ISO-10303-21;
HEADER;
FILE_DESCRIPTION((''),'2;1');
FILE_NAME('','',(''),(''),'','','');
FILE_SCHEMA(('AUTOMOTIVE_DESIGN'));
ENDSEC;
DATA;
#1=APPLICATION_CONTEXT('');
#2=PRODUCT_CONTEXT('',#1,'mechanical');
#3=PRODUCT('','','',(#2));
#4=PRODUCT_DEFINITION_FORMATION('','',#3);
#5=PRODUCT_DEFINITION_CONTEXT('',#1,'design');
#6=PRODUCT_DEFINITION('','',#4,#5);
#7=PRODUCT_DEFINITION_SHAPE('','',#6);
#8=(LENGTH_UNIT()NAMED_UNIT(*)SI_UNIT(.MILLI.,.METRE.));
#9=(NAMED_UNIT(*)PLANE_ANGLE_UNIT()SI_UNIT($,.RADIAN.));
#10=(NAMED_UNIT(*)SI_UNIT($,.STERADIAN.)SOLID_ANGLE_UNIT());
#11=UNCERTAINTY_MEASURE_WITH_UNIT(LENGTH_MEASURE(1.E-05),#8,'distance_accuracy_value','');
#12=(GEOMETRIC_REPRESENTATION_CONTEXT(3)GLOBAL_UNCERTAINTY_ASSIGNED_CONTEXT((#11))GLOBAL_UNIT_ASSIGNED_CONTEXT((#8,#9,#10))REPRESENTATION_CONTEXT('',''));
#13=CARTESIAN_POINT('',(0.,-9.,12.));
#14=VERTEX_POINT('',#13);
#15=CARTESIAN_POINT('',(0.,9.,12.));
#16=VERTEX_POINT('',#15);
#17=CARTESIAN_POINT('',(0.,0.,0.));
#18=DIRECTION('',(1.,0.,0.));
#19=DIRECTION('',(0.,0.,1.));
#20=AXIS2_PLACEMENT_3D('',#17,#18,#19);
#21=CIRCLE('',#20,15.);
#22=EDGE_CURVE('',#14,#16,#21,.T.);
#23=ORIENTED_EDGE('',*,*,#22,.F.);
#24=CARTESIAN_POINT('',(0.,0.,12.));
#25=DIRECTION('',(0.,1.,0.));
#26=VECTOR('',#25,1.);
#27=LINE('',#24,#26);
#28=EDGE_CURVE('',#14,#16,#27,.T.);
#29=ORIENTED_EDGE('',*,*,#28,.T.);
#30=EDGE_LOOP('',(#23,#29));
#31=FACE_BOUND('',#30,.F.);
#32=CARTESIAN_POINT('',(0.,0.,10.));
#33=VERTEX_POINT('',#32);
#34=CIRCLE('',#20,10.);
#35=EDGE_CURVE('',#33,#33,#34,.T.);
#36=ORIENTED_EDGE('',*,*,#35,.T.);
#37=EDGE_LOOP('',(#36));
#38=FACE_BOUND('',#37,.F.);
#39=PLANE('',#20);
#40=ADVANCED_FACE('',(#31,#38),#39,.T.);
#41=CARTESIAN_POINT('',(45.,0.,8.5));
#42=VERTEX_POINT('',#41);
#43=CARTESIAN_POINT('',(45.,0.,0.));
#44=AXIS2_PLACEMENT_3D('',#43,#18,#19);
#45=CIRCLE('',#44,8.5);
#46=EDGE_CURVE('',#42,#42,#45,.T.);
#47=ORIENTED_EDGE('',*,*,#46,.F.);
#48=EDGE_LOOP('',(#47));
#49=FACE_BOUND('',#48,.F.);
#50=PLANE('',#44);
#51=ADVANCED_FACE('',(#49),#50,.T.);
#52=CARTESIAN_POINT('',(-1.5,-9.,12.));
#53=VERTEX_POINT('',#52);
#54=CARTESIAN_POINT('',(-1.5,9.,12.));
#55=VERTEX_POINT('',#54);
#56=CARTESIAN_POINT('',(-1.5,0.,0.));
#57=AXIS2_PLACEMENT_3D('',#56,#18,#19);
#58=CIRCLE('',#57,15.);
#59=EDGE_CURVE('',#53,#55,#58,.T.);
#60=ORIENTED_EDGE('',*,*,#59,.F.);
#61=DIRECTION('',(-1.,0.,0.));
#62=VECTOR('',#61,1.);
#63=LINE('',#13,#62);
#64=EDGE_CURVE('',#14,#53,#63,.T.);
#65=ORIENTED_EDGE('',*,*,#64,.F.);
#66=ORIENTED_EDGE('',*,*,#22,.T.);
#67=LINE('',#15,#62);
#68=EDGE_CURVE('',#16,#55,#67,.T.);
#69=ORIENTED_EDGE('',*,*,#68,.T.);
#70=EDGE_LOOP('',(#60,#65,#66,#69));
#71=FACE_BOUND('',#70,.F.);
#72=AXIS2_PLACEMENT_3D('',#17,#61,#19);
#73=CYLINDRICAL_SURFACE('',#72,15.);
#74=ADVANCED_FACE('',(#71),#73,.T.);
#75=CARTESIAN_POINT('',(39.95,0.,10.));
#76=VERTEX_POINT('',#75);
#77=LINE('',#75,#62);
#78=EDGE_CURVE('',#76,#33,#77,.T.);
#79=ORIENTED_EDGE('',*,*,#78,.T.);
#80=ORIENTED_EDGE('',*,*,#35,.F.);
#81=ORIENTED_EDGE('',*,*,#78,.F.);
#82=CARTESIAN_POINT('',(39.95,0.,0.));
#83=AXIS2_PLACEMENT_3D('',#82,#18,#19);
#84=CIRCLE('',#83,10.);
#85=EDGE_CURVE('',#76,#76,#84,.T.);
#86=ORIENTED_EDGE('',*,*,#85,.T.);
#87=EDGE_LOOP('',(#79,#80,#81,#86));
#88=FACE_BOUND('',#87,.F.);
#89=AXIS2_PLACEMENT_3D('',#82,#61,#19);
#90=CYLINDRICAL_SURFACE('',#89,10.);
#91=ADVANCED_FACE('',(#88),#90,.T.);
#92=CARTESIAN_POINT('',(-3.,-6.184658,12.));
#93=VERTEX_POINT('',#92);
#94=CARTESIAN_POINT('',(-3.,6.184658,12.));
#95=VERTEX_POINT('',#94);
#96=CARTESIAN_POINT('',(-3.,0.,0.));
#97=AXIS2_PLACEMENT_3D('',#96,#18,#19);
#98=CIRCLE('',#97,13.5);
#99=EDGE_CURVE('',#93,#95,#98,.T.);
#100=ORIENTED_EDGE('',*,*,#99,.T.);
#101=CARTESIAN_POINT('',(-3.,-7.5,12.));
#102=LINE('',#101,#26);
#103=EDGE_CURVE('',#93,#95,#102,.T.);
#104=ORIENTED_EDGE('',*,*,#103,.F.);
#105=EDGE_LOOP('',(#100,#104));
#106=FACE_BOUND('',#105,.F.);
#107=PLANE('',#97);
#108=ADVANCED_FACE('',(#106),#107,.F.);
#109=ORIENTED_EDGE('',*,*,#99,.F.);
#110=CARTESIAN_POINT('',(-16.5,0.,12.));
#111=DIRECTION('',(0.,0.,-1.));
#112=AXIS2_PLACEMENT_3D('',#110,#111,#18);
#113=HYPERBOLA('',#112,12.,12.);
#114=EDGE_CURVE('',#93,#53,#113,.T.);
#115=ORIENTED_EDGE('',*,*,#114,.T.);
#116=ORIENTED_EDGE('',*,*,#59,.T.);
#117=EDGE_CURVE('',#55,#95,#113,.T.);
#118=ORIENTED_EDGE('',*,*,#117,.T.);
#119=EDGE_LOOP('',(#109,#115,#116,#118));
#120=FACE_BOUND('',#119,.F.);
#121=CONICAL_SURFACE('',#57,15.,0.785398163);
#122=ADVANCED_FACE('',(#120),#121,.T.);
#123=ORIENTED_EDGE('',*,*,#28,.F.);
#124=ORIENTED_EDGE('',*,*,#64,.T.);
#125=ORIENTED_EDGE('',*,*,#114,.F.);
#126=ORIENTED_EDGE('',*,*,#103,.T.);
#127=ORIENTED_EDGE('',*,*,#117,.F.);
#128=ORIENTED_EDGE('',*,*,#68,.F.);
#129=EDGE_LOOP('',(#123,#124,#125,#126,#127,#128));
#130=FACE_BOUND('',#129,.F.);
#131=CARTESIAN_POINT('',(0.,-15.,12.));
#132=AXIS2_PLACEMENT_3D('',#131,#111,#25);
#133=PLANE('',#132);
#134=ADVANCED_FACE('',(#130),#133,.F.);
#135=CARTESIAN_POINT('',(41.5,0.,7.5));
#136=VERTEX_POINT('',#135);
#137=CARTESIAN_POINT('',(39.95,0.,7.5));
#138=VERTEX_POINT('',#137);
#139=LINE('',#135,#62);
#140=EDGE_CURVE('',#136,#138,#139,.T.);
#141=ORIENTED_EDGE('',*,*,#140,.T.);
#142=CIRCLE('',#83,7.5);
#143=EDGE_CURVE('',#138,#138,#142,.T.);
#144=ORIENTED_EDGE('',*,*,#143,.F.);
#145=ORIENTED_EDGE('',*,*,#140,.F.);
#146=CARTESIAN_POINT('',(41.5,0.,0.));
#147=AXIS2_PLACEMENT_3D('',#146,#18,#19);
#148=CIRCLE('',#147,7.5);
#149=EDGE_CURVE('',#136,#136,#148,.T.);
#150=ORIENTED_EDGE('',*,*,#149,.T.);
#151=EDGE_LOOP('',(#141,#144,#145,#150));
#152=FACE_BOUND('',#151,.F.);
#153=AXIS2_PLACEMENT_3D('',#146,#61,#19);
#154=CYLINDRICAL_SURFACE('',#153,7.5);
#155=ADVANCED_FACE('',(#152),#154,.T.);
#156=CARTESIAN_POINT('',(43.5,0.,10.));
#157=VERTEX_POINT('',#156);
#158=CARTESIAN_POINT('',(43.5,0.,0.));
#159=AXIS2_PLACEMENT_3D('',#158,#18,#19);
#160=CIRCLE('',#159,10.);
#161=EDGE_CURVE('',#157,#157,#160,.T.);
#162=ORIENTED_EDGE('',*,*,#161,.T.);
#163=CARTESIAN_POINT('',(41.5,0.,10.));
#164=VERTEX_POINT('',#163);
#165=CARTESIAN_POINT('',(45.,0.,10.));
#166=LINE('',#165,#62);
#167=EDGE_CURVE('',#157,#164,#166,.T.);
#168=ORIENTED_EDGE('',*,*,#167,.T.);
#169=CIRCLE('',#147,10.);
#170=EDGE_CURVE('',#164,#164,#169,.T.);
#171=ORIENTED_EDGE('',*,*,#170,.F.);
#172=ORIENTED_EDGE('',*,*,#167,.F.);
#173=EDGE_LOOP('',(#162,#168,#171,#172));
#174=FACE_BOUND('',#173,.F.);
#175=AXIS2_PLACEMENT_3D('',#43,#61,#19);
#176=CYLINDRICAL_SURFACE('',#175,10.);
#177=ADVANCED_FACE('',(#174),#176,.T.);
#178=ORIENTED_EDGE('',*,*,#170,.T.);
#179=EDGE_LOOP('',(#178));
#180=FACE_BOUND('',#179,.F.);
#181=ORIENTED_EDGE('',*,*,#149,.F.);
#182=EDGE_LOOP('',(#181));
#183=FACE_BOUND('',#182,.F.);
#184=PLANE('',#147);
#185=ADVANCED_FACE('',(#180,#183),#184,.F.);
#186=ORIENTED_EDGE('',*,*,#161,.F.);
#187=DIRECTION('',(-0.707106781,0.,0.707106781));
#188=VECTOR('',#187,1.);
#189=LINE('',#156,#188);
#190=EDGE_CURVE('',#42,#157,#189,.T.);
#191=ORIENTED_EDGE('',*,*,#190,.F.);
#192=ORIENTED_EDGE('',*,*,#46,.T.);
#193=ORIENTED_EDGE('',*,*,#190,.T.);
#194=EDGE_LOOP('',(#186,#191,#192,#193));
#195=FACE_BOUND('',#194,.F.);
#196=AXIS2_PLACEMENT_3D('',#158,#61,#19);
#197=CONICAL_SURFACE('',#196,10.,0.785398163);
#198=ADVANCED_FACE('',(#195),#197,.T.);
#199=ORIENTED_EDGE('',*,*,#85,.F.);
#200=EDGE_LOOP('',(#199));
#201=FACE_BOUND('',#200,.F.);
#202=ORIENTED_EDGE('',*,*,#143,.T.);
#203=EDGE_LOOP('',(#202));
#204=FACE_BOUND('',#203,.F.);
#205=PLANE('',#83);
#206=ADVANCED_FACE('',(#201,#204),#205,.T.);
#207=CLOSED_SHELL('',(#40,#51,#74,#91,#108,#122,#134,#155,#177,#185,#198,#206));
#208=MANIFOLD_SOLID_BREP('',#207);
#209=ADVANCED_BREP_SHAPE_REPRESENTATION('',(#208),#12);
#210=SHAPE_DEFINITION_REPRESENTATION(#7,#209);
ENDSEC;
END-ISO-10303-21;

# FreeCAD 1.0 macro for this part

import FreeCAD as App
import Part
import Sketcher

V = App.Vector
Q = App.Units.Quantity


def edges_at(feature, points):
    """Names of the edges that pass closest to the given points."""
    edges = feature.Shape.Edges
    near = lambda p: min(range(len(edges)), key=lambda i: edges[i].distToShape(Part.Vertex(*p))[0])
    return sorted({f"Edge{near(p) + 1}" for p in points})


def add_polygon(sketch, points):
    """Adds a closed chain of lines whose ends are joined by coincident constraints."""
    first, n = sketch.GeometryCount, len(points)
    for a, b in zip(points, points[1:] + points[:1]):
        sketch.addGeometry(Part.LineSegment(App.Vector(*a, 0), App.Vector(*b, 0)), False)
    for i in range(n):
        sketch.addConstraint(Sketcher.Constraint("Coincident", first + i, 2, first + (i + 1) % n, 1))

doc = App.newDocument("Part")
params = doc.addObject("Spreadsheet::Sheet", "Params")
for row, (alias, value) in enumerate([
    ("sketch1_width", "3 mm"),
    ("sketch1_width2", "48 mm"),
    ("sketch1_height", "5 mm"),
    ("sketch1_height2", "15 mm"),
    ("sketch1_width3", "3.5 mm"),
    ("revolution_angle", "360 deg"),
    ("chamfer_size", "1.5 mm"),
    ("sketch2_width", "30 mm"),
    ("sketch2_height", "3 mm"),
], start=1):
    params.set(f"A{row}", alias)
    params.set(f"B{row}", "=" + value)
    params.setAlias(f"B{row}", alias)

body = doc.addObject("PartDesign::Body", "Body")

# Sketch on XZ plane
sketch1 = body.newObject("Sketcher::SketchObject", "Sketch")
sketch1.AttachmentSupport = (doc.getObject("XZ_Plane"), [""])
sketch1.MapMode = "FlatFace"
add_polygon(sketch1, [(0, 10), (0, 15), (-3, 15), (-3, 0), (45, 0), (45, 10), (41.5, 10), (41.5, 7.5), (39.95, 7.5), (39.95, 10)])  # lines 0-9
sketch1.addConstraint([
    Sketcher.Constraint("Vertical", 0),
    Sketcher.Constraint("Horizontal", 1),
    Sketcher.Constraint("Vertical", 2),
    Sketcher.Constraint("Horizontal", 3),
    Sketcher.Constraint("Vertical", 4),
    Sketcher.Constraint("Horizontal", 5),
    Sketcher.Constraint("Vertical", 6),
    Sketcher.Constraint("Horizontal", 7),
    Sketcher.Constraint("Vertical", 8),
    Sketcher.Constraint("Horizontal", 9),
    Sketcher.Constraint("PointOnObject", 0, 2, -2),
    Sketcher.Constraint("PointOnObject", 2, 2, -1),
    Sketcher.Constraint("Horizontal", 5, 2, 8, 2),
    Sketcher.Constraint("DistanceX", 1, 2, 1, 1, Q("3 mm")),
    Sketcher.Constraint("DistanceX", 3, 1, 3, 2, Q("48 mm")),
    Sketcher.Constraint("DistanceY", 0, 1, 0, 2, Q("5 mm")),
    Sketcher.Constraint("DistanceY", 2, 2, 2, 1, Q("15 mm")),
    Sketcher.Constraint("DistanceX", 5, 2, 5, 1, Q("3.5 mm")),
    Sketcher.Constraint("DistanceY", 6, 2, 6, 1, Q("2.5 mm")),
    Sketcher.Constraint("DistanceX", 7, 2, 7, 1, Q("1.55 mm")),
])
sketch1.setExpression("Constraints[23]", "Params.sketch1_width")
sketch1.setExpression("Constraints[24]", "Params.sketch1_width2")
sketch1.setExpression("Constraints[25]", "Params.sketch1_height")
sketch1.setExpression("Constraints[26]", "Params.sketch1_height2")
sketch1.setExpression("Constraints[27]", "Params.sketch1_width3")
revolution = body.newObject("PartDesign::Revolution", "Revolution")
revolution.Profile = sketch1
revolution.ReferenceAxis = (sketch1, ["H_Axis"])
revolution.setExpression("Angle", "Params.revolution_angle")
doc.recompute()

chamfer = body.newObject("PartDesign::Chamfer", "Chamfer")
chamfer.Base = (revolution, edges_at(revolution, [(45, 0, -10), (-3, 0, -15)]))
chamfer.setExpression("Size", "Params.chamfer_size")

# Sketch on YZ plane
sketch2 = body.newObject("Sketcher::SketchObject", "Sketch001")
sketch2.AttachmentSupport = (doc.getObject("YZ_Plane"), [""])
sketch2.MapMode = "FlatFace"
add_polygon(sketch2, [(-15, 15), (-15, 12), (15, 12), (15, 15)])  # lines 0-3
sketch2.addConstraint([
    Sketcher.Constraint("Vertical", 0),
    Sketcher.Constraint("Horizontal", 1),
    Sketcher.Constraint("Vertical", 2),
    Sketcher.Constraint("Horizontal", 3),
    Sketcher.Constraint("DistanceX", 1, 1, 1, 2, Q("30 mm")),
    Sketcher.Constraint("DistanceY", 0, 2, 0, 1, Q("3 mm")),
    Sketcher.Constraint("DistanceX", 0, 2, -1, 1, Q("15 mm")),
    Sketcher.Constraint("DistanceY", -1, 1, 0, 2, Q("12 mm")),
])
sketch2.setExpression("Constraints[8]", "Params.sketch2_width")
sketch2.setExpression("Constraints[9]", "Params.sketch2_height")
pocket1 = body.newObject("PartDesign::Pocket", "Pocket")
pocket1.Profile = sketch2
pocket1.Type = "ThroughAll"

doc.recompute()
